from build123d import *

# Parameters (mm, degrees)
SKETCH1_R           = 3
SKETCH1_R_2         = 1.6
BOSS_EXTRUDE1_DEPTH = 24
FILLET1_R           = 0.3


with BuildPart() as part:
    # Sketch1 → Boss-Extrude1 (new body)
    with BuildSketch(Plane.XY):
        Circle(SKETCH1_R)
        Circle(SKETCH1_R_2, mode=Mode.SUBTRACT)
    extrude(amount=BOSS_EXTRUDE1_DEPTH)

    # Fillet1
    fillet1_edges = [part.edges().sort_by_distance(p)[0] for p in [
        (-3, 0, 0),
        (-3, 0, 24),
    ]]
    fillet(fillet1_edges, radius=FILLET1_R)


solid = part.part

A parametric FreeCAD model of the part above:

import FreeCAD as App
import Part
import Sketcher
Q = App.Units.Quantity


def edges_at(feature, points):
    """Names of the edges that pass closest to the given points."""
    edges = feature.Shape.Edges
    near = lambda p: min(range(len(edges)), key=lambda i: edges[i].distToShape(Part.Vertex(*p))[0])
    return sorted({f"Edge{near(p) + 1}" for p in points})

doc = App.newDocument("Part")
body = doc.addObject("PartDesign::Body", "Body")

sketch1 = body.newObject("Sketcher::SketchObject", "Sketch")
sketch1.AttachmentSupport = (doc.getObject("XY_Plane"), [""])
sketch1.MapMode = "FlatFace"
sketch1.addGeometry(Part.Circle(App.Vector(0, 0, 0), App.Vector(0, 0, 1), 3), False)
sketch1.addGeometry(Part.Circle(App.Vector(0, 0, 0), App.Vector(0, 0, 1), 1.6), False)
sketch1.addConstraint(Sketcher.Constraint("Coincident", 0, 3, -1, 1))
sketch1.addConstraint(Sketcher.Constraint("Coincident", 1, 3, -1, 1))
sketch1.addConstraint(Sketcher.Constraint("Diameter", 0, Q("6 mm")))
sketch1.addConstraint(Sketcher.Constraint("Diameter", 1, Q("3.2 mm")))
pad1 = body.newObject("PartDesign::Pad", "Pad")
pad1.Profile = sketch1
pad1.Length = 24
doc.recompute()

fillet = body.newObject("PartDesign::Fillet", "Fillet")
fillet.Base = (pad1, edges_at(pad1, [(-3, 0, 0), (-3, 0, 24)]))
fillet.Radius = 0.3

doc.recompute()
